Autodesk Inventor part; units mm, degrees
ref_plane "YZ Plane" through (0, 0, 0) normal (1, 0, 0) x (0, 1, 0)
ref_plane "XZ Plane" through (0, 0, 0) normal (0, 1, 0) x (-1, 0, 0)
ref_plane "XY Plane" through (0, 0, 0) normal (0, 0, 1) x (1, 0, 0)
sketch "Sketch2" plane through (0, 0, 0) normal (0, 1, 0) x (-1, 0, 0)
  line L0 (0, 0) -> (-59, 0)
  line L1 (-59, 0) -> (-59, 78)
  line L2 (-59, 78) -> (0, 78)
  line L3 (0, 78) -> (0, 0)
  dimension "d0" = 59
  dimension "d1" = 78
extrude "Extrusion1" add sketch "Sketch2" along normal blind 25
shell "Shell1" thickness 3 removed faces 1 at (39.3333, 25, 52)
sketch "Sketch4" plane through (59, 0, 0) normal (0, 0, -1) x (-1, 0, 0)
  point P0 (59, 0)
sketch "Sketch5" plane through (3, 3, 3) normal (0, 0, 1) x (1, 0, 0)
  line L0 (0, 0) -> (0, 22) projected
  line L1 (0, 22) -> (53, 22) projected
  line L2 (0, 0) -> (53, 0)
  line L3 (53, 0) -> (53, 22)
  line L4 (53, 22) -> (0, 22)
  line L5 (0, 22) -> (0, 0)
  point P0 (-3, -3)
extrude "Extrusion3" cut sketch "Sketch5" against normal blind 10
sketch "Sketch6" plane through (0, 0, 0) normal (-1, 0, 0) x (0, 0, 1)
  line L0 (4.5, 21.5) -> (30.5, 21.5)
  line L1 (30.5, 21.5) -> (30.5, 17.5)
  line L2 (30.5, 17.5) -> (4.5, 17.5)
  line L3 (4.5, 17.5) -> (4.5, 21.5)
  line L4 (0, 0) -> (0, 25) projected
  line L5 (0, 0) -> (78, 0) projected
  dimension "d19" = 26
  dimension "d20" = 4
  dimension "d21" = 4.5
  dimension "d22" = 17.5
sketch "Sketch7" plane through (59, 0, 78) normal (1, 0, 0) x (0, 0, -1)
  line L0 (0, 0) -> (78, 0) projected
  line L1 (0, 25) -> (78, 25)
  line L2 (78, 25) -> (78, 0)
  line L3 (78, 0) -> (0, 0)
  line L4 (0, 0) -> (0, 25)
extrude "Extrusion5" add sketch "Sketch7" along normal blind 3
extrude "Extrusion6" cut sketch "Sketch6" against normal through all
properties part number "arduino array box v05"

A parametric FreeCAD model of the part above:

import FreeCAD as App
import Part
import Sketcher

V = App.Vector
Q = App.Units.Quantity


def faces_at(feature, points):
    """Names of the faces that lie closest to the given points."""
    faces = feature.Shape.Faces
    near = lambda p: min(range(len(faces)), key=lambda i: faces[i].distToShape(Part.Vertex(*p))[0])
    return sorted({f"Face{near(p) + 1}" for p in points})


def add_polygon(sketch, points):
    """Adds a closed chain of lines whose ends are joined by coincident constraints."""
    first, n = sketch.GeometryCount, len(points)
    for a, b in zip(points, points[1:] + points[:1]):
        sketch.addGeometry(Part.LineSegment(App.Vector(*a, 0), App.Vector(*b, 0)), False)
    for i in range(n):
        sketch.addConstraint(Sketcher.Constraint("Coincident", first + i, 2, first + (i + 1) % n, 1))

doc = App.newDocument("Part")
params = doc.addObject("Spreadsheet::Sheet", "Params")
for row, (alias, value) in enumerate([
    ("sketch1_width", "59 mm"),
    ("sketch1_height", "78 mm"),
    ("pad1_length", "25 mm"),
    ("thickness_wall", "3 mm"),
    ("sketch2_width", "53 mm"),
    ("sketch2_height", "22 mm"),
    ("pocket1_length", "10 mm"),
    ("sketch3_width", "25 mm"),
    ("sketch3_height", "78 mm"),
    ("pad2_length", "3 mm"),
    ("sketch4_width", "4 mm"),
    ("sketch4_height", "26 mm"),
], start=1):
    params.set(f"A{row}", alias)
    params.set(f"B{row}", "=" + value)
    params.setAlias(f"B{row}", alias)

body = doc.addObject("PartDesign::Body", "Body")

# Sketch on XZ plane
sketch1 = doc.addObject("Sketcher::SketchObject", "Sketch")
body.addObject(sketch1)
sketch1.AttachmentSupport = (doc.XZ_Plane, [""])
sketch1.MapMode = "FlatFace"
add_polygon(sketch1, [(59, 0), (0, 0), (0, 78), (59, 78)])  # lines 0-3
sketch1.addConstraint([
    Sketcher.Constraint("Horizontal", 0),
    Sketcher.Constraint("Vertical", 1),
    Sketcher.Constraint("Horizontal", 2),
    Sketcher.Constraint("Vertical", 3),
    Sketcher.Constraint("Coincident", 0, 2, -1, 1),
    Sketcher.Constraint("DistanceX", 0, 2, 0, 1, Q("59 mm")),
    Sketcher.Constraint("DistanceY", 1, 1, 1, 2, Q("78 mm")),
])
sketch1.setExpression("Constraints[9]", "Params.sketch1_width")
sketch1.setExpression("Constraints[10]", "Params.sketch1_height")
pad1 = doc.addObject("PartDesign::Pad", "Pad")
body.addObject(pad1)
pad1.Profile = sketch1
pad1.setExpression("Length", "Params.pad1_length")
pad1.Reversed = True
doc.recompute()

thickness = doc.addObject("PartDesign::Thickness", "Thickness")
body.addObject(thickness)
thickness.Base = (pad1, faces_at(pad1, [(39.333, 25, 52)]))
thickness.setExpression("Value", "Params.thickness_wall")
thickness.Reversed = True
thickness.Join = "Intersection"

# Sketch on XY plane
sketch2 = doc.addObject("Sketcher::SketchObject", "Sketch001")
body.addObject(sketch2)
sketch2.AttachmentSupport = (doc.XY_Plane, [""])
sketch2.MapMode = "FlatFace"
sketch2.AttachmentOffset = App.Placement(V(0, 0, 3), App.Rotation())
add_polygon(sketch2, [(3, 25), (3, 3), (56, 3), (56, 25)])  # lines 0-3
sketch2.addConstraint([
    Sketcher.Constraint("Vertical", 0),
    Sketcher.Constraint("Horizontal", 1),
    Sketcher.Constraint("Vertical", 2),
    Sketcher.Constraint("Horizontal", 3),
    Sketcher.Constraint("DistanceX", 1, 1, 1, 2, Q("53 mm")),
    Sketcher.Constraint("DistanceY", 0, 2, 0, 1, Q("22 mm")),
    Sketcher.Constraint("DistanceX", -1, 1, 0, 2, Q("3 mm")),
    Sketcher.Constraint("DistanceY", -1, 1, 0, 2, Q("3 mm")),
])
sketch2.setExpression("Constraints[8]", "Params.sketch2_width")
sketch2.setExpression("Constraints[9]", "Params.sketch2_height")
pocket1 = doc.addObject("PartDesign::Pocket", "Pocket")
body.addObject(pocket1)
pocket1.Profile = sketch2
pocket1.setExpression("Length", "Params.pocket1_length")

# Sketch on YZ plane
sketch3 = doc.addObject("Sketcher::SketchObject", "Sketch002")
body.addObject(sketch3)
sketch3.AttachmentSupport = (doc.YZ_Plane, [""])
sketch3.MapMode = "FlatFace"
sketch3.AttachmentOffset = App.Placement(V(0, 0, 59), App.Rotation())
add_polygon(sketch3, [(25, 78), (0, 78), (0, 0), (25, 0)])  # lines 0-3
sketch3.addConstraint([
    Sketcher.Constraint("Horizontal", 0),
    Sketcher.Constraint("Vertical", 1),
    Sketcher.Constraint("Horizontal", 2),
    Sketcher.Constraint("Vertical", 3),
    Sketcher.Constraint("Coincident", 1, 2, -1, 1),
    Sketcher.Constraint("DistanceX", 0, 2, 0, 1, Q("25 mm")),
    Sketcher.Constraint("DistanceY", 1, 2, 1, 1, Q("78 mm")),
])
sketch3.setExpression("Constraints[9]", "Params.sketch3_width")
sketch3.setExpression("Constraints[10]", "Params.sketch3_height")
pad2 = doc.addObject("PartDesign::Pad", "Pad001")
body.addObject(pad2)
pad2.Profile = sketch3
pad2.setExpression("Length", "Params.pad2_length")

# Sketch on YZ plane
sketch4 = doc.addObject("Sketcher::SketchObject", "Sketch003")
body.addObject(sketch4)
sketch4.AttachmentSupport = (doc.YZ_Plane, [""])
sketch4.MapMode = "FlatFace"
add_polygon(sketch4, [(21.5, 30.5), (21.5, 4.5), (17.5, 4.5), (17.5, 30.5)])  # lines 0-3
sketch4.addConstraint([
    Sketcher.Constraint("Vertical", 0),
    Sketcher.Constraint("Horizontal", 1),
    Sketcher.Constraint("Vertical", 2),
    Sketcher.Constraint("Horizontal", 3),
    Sketcher.Constraint("DistanceX", 1, 2, 1, 1, Q("4 mm")),
    Sketcher.Constraint("DistanceY", 0, 2, 0, 1, Q("26 mm")),
    Sketcher.Constraint("DistanceY", -1, 1, 0, 2, Q("4.5 mm")),
    Sketcher.Constraint("DistanceX", -1, 1, 1, 2, Q("17.5 mm")),
])
sketch4.setExpression("Constraints[8]", "Params.sketch4_width")
sketch4.setExpression("Constraints[9]", "Params.sketch4_height")
pocket2 = doc.addObject("PartDesign::Pocket", "Pocket001")
body.addObject(pocket2)
pocket2.Profile = sketch4
pocket2.Type = "ThroughAll"
pocket2.Reversed = True

doc.recompute()
